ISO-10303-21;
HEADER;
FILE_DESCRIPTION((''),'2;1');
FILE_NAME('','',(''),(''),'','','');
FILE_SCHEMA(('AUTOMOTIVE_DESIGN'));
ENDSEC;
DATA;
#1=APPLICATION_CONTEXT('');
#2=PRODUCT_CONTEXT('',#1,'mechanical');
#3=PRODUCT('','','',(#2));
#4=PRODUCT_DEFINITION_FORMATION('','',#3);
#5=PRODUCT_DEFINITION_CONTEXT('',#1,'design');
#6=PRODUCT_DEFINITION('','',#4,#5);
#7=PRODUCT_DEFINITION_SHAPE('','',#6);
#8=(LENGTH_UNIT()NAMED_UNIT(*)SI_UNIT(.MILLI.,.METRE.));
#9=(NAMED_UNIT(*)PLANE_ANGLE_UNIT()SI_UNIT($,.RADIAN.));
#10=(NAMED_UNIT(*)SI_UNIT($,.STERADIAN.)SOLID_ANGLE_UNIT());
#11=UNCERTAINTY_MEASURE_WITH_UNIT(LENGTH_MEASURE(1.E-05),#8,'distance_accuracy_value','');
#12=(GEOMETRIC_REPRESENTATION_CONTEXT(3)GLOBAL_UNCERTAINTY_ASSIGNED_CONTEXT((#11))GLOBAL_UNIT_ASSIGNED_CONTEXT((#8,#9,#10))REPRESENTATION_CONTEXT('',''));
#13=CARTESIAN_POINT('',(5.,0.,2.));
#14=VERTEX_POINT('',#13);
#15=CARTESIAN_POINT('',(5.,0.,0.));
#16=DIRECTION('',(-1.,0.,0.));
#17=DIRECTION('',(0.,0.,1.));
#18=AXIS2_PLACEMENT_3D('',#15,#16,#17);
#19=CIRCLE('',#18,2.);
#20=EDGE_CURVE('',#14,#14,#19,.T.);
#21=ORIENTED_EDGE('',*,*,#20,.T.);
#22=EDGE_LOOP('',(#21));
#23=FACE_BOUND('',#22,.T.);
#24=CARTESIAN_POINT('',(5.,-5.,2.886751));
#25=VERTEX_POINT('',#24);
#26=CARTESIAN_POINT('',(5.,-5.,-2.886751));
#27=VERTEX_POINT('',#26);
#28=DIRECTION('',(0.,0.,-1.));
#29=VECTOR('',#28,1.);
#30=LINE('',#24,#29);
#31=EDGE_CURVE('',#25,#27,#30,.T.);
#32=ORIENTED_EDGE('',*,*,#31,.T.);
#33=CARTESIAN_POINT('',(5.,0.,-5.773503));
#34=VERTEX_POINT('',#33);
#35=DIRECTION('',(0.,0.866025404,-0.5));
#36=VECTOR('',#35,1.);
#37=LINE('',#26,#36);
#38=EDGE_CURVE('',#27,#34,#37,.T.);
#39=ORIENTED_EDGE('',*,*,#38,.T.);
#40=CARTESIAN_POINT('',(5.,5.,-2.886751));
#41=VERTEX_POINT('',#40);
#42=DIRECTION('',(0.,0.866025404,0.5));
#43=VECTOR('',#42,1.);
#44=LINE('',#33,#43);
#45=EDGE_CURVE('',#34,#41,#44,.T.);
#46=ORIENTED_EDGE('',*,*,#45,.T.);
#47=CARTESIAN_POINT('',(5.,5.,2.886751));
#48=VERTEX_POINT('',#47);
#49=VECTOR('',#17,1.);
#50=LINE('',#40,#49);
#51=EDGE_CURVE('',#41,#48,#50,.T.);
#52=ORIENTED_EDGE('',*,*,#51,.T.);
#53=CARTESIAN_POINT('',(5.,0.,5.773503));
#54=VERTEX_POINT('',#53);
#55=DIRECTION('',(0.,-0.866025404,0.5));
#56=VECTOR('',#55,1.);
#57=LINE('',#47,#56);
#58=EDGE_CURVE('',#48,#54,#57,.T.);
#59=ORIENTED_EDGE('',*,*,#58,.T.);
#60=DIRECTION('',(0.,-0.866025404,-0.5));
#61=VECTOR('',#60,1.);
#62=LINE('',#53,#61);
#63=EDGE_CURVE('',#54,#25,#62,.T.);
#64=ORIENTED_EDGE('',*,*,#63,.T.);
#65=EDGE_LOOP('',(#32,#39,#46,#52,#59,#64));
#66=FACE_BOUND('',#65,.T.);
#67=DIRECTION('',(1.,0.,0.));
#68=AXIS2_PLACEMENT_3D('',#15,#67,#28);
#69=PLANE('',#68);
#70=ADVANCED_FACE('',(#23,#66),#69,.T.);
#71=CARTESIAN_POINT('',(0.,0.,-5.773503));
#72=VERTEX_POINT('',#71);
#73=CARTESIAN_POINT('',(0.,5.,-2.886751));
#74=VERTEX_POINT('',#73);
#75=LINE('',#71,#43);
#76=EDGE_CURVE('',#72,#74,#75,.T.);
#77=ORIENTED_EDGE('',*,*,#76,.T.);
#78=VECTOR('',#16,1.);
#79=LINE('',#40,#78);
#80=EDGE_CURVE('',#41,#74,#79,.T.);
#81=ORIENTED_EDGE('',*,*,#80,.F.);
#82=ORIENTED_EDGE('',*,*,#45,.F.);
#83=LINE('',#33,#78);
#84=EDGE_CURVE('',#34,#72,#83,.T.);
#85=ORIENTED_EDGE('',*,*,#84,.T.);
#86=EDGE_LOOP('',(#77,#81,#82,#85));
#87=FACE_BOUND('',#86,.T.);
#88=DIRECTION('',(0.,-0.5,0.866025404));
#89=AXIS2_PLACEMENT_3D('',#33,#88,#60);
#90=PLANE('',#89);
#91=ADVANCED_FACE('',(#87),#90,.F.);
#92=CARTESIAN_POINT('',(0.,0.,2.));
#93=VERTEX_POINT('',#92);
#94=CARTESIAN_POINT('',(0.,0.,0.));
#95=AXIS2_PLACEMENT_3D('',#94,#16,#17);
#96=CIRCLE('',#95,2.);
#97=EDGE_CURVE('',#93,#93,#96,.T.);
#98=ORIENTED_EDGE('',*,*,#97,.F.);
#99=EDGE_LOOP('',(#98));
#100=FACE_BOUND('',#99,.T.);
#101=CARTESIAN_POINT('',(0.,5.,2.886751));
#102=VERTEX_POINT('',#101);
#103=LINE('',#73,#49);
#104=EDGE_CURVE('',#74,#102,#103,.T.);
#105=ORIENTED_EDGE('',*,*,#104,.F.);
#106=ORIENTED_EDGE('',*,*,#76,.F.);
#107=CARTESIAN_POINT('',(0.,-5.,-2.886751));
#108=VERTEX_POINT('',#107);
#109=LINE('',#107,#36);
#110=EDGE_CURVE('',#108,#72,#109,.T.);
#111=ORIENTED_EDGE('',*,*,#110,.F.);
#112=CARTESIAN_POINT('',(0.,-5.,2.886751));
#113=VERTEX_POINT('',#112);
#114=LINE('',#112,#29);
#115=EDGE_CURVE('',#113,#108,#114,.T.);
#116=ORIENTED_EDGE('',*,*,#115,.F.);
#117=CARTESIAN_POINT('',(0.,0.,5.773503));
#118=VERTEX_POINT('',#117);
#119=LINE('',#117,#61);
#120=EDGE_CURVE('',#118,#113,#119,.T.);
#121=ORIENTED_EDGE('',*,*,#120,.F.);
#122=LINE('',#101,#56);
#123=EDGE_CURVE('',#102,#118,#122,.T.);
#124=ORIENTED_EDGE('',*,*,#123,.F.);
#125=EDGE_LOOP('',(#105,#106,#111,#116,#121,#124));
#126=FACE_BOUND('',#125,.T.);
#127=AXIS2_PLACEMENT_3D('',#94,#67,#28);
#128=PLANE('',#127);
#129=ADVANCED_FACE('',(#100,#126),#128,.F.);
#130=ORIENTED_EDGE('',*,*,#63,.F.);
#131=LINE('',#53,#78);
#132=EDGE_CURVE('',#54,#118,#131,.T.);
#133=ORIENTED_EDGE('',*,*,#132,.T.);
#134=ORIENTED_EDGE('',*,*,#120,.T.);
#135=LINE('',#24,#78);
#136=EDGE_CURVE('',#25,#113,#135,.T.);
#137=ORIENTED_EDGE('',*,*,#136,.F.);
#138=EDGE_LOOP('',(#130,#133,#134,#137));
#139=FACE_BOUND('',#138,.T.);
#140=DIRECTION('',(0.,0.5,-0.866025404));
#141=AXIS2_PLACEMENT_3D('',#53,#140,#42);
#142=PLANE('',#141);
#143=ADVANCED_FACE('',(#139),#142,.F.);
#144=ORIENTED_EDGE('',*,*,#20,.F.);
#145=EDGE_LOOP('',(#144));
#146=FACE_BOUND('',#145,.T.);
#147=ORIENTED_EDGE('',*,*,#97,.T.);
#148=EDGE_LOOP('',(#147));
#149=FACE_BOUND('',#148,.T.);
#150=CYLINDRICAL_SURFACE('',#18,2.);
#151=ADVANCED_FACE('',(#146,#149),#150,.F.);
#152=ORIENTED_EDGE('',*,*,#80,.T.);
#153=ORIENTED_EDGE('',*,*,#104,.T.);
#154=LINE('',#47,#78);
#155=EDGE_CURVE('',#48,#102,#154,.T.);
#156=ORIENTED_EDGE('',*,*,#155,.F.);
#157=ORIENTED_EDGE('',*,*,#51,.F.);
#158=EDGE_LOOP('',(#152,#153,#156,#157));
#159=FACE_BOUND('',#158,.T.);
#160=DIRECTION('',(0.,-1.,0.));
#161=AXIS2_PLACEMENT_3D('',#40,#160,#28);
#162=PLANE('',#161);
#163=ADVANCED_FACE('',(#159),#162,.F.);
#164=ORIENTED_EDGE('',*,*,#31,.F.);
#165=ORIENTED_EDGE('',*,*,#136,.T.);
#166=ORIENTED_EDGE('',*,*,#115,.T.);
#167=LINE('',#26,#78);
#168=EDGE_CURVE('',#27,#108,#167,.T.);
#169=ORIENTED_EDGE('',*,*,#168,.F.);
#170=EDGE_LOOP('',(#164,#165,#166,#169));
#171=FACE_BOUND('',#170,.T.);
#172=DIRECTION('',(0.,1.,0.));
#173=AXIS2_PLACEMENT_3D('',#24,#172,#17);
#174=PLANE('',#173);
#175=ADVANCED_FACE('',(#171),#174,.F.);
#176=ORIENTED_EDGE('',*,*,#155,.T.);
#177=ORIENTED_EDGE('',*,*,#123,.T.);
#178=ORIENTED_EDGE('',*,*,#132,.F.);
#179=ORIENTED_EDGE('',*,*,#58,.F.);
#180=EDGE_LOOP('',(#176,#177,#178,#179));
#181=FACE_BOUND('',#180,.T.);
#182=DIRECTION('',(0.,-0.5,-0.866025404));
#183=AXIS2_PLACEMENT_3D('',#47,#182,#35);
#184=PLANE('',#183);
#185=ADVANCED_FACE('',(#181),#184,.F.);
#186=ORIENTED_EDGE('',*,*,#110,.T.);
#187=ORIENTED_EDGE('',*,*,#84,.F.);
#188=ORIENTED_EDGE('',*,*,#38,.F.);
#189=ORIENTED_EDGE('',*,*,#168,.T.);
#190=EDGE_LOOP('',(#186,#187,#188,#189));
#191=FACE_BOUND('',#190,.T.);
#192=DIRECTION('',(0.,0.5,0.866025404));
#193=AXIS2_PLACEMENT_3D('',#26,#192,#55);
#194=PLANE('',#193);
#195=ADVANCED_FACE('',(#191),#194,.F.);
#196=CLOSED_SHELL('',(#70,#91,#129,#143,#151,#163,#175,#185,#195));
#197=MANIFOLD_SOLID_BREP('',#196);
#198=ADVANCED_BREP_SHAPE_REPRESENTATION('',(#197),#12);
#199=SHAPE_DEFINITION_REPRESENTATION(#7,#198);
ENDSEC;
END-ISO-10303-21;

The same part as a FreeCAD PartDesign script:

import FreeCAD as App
import Part
import Sketcher
Q = App.Units.Quantity

doc = App.newDocument("Part")
body = doc.addObject("PartDesign::Body", "Body")

# Sketch on YZ plane
sketch1 = body.newObject("Sketcher::SketchObject", "Sketch")
sketch1.AttachmentSupport = (doc.getObject("YZ_Plane"), [""])
sketch1.MapMode = "FlatFace"
sketch1.addGeometry([
    Part.LineSegment(App.Vector(0, -5.773503, 0), App.Vector(5, -2.886751, 0)),  # 0
    Part.LineSegment(App.Vector(5, -2.886751, 0), App.Vector(5, 2.886751, 0)),  # 1
    Part.LineSegment(App.Vector(5, 2.886751, 0), App.Vector(0, 5.773503, 0)),  # 2
    Part.LineSegment(App.Vector(0, 5.773503, 0), App.Vector(-5, 2.886751, 0)),  # 3
    Part.LineSegment(App.Vector(-5, 2.886751, 0), App.Vector(-5, -2.886751, 0)),  # 4
    Part.LineSegment(App.Vector(-5, -2.886751, 0), App.Vector(0, -5.773503, 0)),  # 5
], False)
sketch1.addConstraint([
    Sketcher.Constraint("Coincident", 0, 2, 1, 1),
    Sketcher.Constraint("Coincident", 1, 2, 2, 1),
    Sketcher.Constraint("Coincident", 2, 2, 3, 1),
    Sketcher.Constraint("Coincident", 3, 2, 4, 1),
    Sketcher.Constraint("Coincident", 4, 2, 5, 1),
    Sketcher.Constraint("Coincident", 5, 2, 0, 1),
    Sketcher.Constraint("Vertical", 1),
    Sketcher.Constraint("Vertical", 4),
    Sketcher.Constraint("Symmetric", 0, 2, 3, 2, -1, 1),
    Sketcher.Constraint("Symmetric", 2, 2, 5, 2, -1, 1),
    Sketcher.Constraint("PointOnObject", 2, 2, -2),
    Sketcher.Constraint("Parallel", 2, 5),
    Sketcher.Constraint("Horizontal", 1, 2, 3, 2),
    Sketcher.Constraint("Angle", 0, Q("30 deg")),
    Sketcher.Constraint("DistanceX", -1, 1, 0, 2, 5.0),
    Sketcher.Constraint("DistanceY", 1, 1, 1, 2, 5.773503),
])
pad1 = body.newObject("PartDesign::Pad", "Pad")
pad1.Profile = sketch1
pad1.Length = 5

# Sketch on YZ plane
sketch2 = body.newObject("Sketcher::SketchObject", "Sketch001")
sketch2.AttachmentSupport = (doc.getObject("YZ_Plane"), [""])
sketch2.MapMode = "FlatFace"
sketch2.addGeometry(Part.Circle(App.Vector(0, 0, 0), App.Vector(0, 0, 1), 2), False)
sketch2.addConstraint([
    Sketcher.Constraint("Coincident", 0, 3, -1, 1),
    Sketcher.Constraint("Diameter", 0, 4.0),
])
pocket1 = body.newObject("PartDesign::Pocket", "Pocket")
pocket1.Profile = sketch2
pocket1.Type = "ThroughAll"
pocket1.Reversed = True

doc.recompute()
